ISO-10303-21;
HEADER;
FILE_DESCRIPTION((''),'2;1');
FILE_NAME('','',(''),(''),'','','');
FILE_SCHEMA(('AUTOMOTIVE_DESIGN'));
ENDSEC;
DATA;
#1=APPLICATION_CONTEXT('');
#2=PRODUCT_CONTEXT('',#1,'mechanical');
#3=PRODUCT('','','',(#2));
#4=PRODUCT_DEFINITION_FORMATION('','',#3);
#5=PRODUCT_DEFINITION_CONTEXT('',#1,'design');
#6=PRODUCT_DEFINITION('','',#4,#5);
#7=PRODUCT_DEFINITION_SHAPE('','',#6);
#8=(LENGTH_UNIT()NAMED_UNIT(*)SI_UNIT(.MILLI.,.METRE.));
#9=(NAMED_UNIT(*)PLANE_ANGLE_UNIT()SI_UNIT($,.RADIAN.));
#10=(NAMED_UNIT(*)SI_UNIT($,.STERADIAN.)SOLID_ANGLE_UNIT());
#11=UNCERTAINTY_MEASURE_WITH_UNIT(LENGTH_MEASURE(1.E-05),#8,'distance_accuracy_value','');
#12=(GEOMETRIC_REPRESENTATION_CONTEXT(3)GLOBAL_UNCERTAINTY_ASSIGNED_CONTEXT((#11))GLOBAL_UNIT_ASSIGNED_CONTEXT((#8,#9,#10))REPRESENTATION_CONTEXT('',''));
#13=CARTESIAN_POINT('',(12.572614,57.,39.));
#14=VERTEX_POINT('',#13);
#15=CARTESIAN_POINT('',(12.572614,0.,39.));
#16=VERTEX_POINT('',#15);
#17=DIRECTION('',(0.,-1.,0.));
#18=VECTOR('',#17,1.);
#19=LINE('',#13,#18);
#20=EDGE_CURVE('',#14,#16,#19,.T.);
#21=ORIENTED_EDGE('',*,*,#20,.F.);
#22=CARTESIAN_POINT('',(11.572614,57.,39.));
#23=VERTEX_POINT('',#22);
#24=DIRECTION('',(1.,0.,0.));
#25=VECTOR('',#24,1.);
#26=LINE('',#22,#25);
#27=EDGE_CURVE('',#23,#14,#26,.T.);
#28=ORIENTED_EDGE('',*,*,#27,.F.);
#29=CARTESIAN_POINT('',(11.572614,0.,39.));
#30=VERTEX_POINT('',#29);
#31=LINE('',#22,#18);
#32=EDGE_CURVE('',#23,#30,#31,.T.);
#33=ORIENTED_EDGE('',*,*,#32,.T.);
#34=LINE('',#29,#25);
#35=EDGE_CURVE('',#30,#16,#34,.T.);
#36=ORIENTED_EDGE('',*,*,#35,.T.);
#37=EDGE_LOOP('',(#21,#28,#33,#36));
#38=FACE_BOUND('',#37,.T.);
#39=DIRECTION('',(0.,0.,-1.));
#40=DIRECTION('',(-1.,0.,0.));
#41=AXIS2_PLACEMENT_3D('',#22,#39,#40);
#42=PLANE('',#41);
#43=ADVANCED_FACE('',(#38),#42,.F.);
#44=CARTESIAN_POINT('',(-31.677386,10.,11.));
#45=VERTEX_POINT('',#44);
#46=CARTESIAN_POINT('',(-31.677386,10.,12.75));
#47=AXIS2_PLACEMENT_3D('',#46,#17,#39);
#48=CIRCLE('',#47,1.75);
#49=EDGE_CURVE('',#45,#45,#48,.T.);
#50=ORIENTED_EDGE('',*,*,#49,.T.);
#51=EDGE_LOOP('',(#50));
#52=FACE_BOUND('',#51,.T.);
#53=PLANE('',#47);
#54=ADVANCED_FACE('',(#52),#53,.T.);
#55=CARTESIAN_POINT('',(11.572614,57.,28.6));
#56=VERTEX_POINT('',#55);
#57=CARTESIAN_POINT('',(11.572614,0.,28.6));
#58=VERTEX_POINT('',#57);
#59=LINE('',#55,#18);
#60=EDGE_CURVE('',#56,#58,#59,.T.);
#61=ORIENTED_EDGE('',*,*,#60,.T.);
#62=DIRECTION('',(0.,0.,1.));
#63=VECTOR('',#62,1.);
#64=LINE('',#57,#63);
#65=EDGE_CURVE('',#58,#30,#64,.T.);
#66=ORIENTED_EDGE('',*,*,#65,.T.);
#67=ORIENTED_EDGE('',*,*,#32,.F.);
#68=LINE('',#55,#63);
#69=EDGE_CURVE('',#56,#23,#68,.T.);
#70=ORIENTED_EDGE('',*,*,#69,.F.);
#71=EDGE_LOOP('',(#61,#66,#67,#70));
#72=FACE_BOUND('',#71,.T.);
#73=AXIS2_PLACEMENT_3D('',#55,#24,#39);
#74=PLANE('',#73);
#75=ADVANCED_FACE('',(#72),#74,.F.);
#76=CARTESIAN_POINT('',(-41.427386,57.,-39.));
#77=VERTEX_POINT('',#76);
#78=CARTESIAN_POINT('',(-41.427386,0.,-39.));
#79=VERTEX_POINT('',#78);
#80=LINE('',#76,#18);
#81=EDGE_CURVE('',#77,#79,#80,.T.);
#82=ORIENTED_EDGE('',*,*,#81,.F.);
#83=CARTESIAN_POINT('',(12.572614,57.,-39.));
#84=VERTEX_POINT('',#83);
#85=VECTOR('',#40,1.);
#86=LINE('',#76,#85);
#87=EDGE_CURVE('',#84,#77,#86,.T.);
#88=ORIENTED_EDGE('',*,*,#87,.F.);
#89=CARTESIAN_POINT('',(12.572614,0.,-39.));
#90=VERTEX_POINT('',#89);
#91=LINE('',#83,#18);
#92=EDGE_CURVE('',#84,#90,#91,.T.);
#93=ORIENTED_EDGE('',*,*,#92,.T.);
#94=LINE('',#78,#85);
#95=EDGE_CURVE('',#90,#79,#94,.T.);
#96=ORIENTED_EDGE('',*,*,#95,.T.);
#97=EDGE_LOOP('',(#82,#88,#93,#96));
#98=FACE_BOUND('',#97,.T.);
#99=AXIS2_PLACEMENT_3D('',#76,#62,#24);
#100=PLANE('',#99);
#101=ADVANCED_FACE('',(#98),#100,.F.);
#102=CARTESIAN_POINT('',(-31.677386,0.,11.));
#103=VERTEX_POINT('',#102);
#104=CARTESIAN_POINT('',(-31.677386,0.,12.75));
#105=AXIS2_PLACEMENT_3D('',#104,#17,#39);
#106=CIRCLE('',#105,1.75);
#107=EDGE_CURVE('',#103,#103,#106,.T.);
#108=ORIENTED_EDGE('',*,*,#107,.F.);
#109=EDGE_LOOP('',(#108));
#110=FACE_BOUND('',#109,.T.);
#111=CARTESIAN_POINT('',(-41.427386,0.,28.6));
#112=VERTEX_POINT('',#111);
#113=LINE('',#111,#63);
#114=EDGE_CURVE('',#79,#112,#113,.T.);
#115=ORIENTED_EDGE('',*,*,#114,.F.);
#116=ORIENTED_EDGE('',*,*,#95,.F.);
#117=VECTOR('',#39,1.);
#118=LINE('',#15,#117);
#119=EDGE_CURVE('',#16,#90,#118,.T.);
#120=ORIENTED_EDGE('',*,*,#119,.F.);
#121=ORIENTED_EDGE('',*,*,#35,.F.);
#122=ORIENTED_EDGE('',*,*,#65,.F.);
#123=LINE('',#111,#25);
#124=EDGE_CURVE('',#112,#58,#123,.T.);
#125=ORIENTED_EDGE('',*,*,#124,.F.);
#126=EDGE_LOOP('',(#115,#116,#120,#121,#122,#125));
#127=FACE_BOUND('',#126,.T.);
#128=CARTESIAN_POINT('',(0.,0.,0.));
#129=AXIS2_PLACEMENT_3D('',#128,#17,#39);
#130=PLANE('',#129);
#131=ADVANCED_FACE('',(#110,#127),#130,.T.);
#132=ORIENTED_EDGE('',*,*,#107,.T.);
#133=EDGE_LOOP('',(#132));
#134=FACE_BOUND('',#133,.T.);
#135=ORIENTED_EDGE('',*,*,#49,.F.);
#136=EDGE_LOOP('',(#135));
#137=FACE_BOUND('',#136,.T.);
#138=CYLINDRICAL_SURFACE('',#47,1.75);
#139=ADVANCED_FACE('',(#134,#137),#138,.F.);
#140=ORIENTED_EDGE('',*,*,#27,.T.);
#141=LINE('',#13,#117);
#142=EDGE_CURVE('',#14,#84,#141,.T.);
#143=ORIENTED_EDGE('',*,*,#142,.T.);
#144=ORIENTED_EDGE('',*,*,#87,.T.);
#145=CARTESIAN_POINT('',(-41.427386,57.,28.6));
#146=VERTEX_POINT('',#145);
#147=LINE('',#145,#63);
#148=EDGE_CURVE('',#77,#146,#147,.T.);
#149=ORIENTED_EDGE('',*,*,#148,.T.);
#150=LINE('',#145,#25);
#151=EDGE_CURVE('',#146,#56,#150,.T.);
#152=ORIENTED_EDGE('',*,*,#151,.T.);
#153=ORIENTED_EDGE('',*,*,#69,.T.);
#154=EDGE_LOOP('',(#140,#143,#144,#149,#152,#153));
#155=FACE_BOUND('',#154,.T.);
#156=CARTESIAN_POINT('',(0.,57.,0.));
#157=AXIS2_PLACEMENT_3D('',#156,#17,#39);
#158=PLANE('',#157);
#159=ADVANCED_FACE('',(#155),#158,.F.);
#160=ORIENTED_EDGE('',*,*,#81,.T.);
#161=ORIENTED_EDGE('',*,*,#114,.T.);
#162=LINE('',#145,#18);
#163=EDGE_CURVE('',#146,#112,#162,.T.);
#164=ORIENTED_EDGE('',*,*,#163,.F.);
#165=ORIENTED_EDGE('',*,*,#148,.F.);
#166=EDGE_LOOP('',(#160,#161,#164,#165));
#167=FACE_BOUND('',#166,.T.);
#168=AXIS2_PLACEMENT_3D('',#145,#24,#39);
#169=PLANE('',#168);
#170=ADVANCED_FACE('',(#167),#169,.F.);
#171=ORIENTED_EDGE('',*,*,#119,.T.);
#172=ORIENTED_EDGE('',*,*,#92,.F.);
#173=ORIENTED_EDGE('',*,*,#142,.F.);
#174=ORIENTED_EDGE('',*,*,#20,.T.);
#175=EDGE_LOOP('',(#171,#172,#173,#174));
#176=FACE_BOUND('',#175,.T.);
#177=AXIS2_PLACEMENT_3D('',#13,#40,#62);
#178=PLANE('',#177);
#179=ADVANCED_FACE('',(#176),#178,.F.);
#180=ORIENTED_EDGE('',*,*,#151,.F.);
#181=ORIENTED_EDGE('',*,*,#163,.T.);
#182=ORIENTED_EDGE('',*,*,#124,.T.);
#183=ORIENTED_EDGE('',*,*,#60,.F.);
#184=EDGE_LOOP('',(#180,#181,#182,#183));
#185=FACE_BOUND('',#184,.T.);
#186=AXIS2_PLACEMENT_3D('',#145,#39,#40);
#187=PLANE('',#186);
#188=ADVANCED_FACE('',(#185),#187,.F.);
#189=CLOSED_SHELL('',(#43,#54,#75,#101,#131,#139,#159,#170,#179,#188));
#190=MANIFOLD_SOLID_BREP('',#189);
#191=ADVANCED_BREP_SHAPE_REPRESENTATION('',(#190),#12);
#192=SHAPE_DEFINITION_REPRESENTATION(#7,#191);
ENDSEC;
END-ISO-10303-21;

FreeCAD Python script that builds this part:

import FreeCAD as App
import Part
import Sketcher


def add_polygon(sketch, points):
    """Adds a closed chain of lines whose ends are joined by coincident constraints."""
    first, n = sketch.GeometryCount, len(points)
    for a, b in zip(points, points[1:] + points[:1]):
        sketch.addGeometry(Part.LineSegment(App.Vector(*a, 0), App.Vector(*b, 0)), False)
    for i in range(n):
        sketch.addConstraint(Sketcher.Constraint("Coincident", first + i, 2, first + (i + 1) % n, 1))

doc = App.newDocument("Part")
body = doc.addObject("PartDesign::Body", "Body")

# Sketch on XZ plane
sketch1 = body.newObject("Sketcher::SketchObject", "Sketch")
sketch1.AttachmentSupport = (doc.getObject("XZ_Plane"), [""])
sketch1.MapMode = "FlatFace"
add_polygon(sketch1, [(-41.427386, 28.6), (11.572614, 28.6), (11.572614, 39), (12.572614, 39), (12.572614, -39), (-41.427386, -39)])  # lines 0-5
sketch1.addConstraint(Sketcher.Constraint("Horizontal", 0))
sketch1.addConstraint(Sketcher.Constraint("Vertical", 1))
sketch1.addConstraint(Sketcher.Constraint("Horizontal", 2))
sketch1.addConstraint(Sketcher.Constraint("Vertical", 3))
sketch1.addConstraint(Sketcher.Constraint("Horizontal", 4))
sketch1.addConstraint(Sketcher.Constraint("Vertical", 5))
sketch1.addConstraint(Sketcher.Constraint("DistanceX", 0, 1, 0, 2, 53.0))
sketch1.addConstraint(Sketcher.Constraint("DistanceX", 2, 1, 2, 2, 1.0))
sketch1.addConstraint(Sketcher.Constraint("DistanceY", 3, 2, 3, 1, 78.0))
sketch1.addConstraint(Sketcher.Constraint("DistanceY", 1, 1, 1, 2, 10.4))
sketch1.addConstraint(Sketcher.Constraint("DistanceY", -1, 1, 1, 2, 39.0))
sketch1.addConstraint(Sketcher.Constraint("DistanceX", -1, 1, 0, 2, 11.572614))
pad1 = body.newObject("PartDesign::Pad", "Pad")
pad1.Profile = sketch1
pad1.Length = 57
pad1.Reversed = True

# Sketch on XZ plane
sketch2 = body.newObject("Sketcher::SketchObject", "Sketch001")
sketch2.AttachmentSupport = (doc.getObject("XZ_Plane"), [""])
sketch2.MapMode = "FlatFace"
sketch2.addGeometry(Part.Circle(App.Vector(-31.677386, 12.75, 0), App.Vector(0, 0, 1), 1.75), False)
sketch2.addConstraint(Sketcher.Constraint("Diameter", 0, 3.5))
sketch2.addConstraint(Sketcher.Constraint("DistanceY", -1, 1, 0, 3, 12.75))
sketch2.addConstraint(Sketcher.Constraint("DistanceX", 0, 3, -1, 1, 31.677386))
pocket1 = body.newObject("PartDesign::Pocket", "Pocket")
pocket1.Profile = sketch2
pocket1.Length = 10

doc.recompute()
